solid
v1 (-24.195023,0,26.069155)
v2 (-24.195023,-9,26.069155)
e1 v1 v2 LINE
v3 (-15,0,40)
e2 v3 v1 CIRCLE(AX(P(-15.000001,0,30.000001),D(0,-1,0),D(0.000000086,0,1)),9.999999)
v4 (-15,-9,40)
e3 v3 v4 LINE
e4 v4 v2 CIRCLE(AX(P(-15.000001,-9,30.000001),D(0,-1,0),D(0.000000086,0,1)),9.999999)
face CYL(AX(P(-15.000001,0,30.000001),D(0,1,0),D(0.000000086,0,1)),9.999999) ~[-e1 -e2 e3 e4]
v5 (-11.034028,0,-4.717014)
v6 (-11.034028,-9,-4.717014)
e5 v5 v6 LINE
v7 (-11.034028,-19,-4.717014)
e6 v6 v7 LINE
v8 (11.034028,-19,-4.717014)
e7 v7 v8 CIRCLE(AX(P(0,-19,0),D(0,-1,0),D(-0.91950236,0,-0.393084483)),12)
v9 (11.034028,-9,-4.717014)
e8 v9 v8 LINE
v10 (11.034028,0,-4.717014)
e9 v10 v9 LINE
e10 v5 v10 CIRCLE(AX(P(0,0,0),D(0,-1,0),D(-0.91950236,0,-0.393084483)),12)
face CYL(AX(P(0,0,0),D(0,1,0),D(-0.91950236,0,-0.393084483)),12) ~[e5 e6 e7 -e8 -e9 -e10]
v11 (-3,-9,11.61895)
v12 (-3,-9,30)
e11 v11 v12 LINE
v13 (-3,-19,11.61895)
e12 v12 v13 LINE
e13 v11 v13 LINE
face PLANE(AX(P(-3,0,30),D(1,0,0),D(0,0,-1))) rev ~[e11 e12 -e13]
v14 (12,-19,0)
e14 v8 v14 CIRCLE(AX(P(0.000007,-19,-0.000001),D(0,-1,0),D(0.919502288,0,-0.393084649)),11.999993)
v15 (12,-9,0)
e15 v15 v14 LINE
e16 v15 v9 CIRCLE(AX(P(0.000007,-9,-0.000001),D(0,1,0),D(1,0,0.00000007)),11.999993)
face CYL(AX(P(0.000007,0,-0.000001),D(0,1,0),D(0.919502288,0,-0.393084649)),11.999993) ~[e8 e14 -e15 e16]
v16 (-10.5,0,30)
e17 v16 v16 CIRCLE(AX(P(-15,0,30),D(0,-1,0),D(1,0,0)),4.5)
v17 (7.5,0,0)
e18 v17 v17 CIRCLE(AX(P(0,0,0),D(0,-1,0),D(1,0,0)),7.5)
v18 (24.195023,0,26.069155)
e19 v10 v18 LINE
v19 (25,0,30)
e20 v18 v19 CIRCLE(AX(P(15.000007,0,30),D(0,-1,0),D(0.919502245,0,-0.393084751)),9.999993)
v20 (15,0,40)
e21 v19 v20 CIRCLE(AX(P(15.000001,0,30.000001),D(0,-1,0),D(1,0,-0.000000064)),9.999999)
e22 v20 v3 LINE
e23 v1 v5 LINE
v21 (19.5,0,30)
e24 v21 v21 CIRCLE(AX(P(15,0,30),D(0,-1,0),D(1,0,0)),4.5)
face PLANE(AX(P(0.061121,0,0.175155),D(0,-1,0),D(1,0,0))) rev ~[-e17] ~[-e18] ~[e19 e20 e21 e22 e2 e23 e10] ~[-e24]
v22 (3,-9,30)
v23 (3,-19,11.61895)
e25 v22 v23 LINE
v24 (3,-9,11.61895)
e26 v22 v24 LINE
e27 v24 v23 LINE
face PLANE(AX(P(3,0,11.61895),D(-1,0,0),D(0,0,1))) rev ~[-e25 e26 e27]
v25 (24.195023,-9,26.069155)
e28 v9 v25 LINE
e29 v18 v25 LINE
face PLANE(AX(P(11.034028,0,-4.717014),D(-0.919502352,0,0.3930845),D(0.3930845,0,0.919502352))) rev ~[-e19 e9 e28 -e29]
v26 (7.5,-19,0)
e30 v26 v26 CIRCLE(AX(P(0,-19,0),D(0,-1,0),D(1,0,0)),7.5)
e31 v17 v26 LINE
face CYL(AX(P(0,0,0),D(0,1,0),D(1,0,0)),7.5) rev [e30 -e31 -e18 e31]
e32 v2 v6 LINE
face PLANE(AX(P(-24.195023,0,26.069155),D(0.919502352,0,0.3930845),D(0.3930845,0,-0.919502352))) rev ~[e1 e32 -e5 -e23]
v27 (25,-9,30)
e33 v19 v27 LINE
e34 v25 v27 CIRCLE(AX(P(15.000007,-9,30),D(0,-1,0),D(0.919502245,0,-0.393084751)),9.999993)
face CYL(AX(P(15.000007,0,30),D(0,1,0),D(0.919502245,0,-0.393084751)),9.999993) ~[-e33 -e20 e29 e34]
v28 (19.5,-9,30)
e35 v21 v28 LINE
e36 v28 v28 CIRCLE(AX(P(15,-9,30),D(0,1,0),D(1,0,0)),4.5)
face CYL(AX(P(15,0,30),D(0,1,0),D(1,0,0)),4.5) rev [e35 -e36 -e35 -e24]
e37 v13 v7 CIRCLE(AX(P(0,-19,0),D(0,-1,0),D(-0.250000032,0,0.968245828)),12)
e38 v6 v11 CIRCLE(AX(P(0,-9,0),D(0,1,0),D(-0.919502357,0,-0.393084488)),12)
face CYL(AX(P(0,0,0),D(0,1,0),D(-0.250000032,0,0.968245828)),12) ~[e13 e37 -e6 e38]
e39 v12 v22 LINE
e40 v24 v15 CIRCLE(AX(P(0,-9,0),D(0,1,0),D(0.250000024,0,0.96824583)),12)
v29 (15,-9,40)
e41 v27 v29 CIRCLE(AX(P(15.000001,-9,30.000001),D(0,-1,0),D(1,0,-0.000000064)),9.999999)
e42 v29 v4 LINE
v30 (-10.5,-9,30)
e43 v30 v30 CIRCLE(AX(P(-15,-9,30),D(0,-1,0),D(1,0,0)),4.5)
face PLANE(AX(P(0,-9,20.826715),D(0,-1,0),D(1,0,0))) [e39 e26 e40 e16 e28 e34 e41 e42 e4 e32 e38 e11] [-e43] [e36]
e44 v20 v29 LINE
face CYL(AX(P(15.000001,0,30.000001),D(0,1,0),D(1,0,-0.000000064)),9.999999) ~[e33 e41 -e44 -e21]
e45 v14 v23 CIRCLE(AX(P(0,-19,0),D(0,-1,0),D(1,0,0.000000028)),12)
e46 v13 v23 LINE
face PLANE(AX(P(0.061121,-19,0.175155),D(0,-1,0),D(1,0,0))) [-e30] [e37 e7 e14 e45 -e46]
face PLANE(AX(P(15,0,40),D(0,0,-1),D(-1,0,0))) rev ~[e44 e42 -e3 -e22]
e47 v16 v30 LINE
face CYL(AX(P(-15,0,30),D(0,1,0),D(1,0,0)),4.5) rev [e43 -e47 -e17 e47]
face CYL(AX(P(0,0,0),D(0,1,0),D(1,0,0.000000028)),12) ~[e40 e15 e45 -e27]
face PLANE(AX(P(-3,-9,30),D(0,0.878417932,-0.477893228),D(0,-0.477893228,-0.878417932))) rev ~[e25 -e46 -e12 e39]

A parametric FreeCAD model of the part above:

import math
import FreeCAD as App
import Part
import Sketcher
from FreeCAD import Vector
Q = App.Units.Quantity

doc = App.newDocument("Part")
params = doc.addObject("Spreadsheet::Sheet", "Params")
for row, (alias, value) in enumerate([
    ("sketch1_diameter", "9 mm"),
    ("sketch1_radius", "11.999999 mm"),
    ("sketch1_radius2", "9.999999 mm"),
    ("sketch1_width", "30 mm"),
    ("pad1_length", "9 mm"),
    ("sketch2_radius", "11.999999 mm"),
    ("sketch2_width", "6 mm"),
    ("pad2_length", "19 mm"),
    ("sketch3_diameter", "15 mm"),
    ("sketch3_radius", "12 mm"),
    ("pad3_length", "19 mm"),
    ("sketch4_width", "10 mm"),
], start=1):
    params.set(f"A{row}", alias)
    params.set(f"B{row}", "=" + value)
    params.setAlias(f"B{row}", alias)

body = doc.addObject("PartDesign::Body", "Body")

# Sketch on XZ plane
sketch1 = doc.addObject("Sketcher::SketchObject", "Sketch")
body.addObject(sketch1)
sketch1.AttachmentSupport = (doc.XZ_Plane, [""])
sketch1.MapMode = "FlatFace"
sketch1.addGeometry(Part.ArcOfCircle(Part.Circle(Vector(0, 0, 0), Vector(0, 0, 1), 12), math.radians(76), math.radians(104)), False)
sketch1.addGeometry(Part.ArcOfCircle(Part.Circle(Vector(0, 0, 0), Vector(0, 0, 1), 12), math.radians(0), math.radians(76)), False)
sketch1.addGeometry(Part.ArcOfCircle(Part.Circle(Vector(0, 0, 0), Vector(0, 0, 1), 12), math.radians(-23), math.radians(0)), False)
sketch1.addGeometry(Part.LineSegment(Vector(11, -4.7, 0), Vector(24.2, 26.1, 0)), False)
sketch1.addGeometry(Part.ArcOfCircle(Part.Circle(Vector(15, 30, 0), Vector(0, 0, 1), 10), math.radians(-23), math.radians(0)), False)
sketch1.addGeometry(Part.ArcOfCircle(Part.Circle(Vector(15, 30, 0), Vector(0, 0, 1), 10), math.radians(0), math.radians(90)), False)
sketch1.addGeometry(Part.LineSegment(Vector(15, 40, 0), Vector(-15, 40, 0)), False)
sketch1.addGeometry(Part.ArcOfCircle(Part.Circle(Vector(-15, 30, 0), Vector(0, 0, 1), 10), math.radians(90), math.radians(203)), False)
sketch1.addGeometry(Part.LineSegment(Vector(-24.2, 26.1, 0), Vector(-11, -4.7, 0)), False)
sketch1.addGeometry(Part.ArcOfCircle(Part.Circle(Vector(0, 0, 0), Vector(0, 0, 1), 12), math.radians(104), math.radians(203)), False)
sketch1.addGeometry(Part.Circle(Vector(-15, 30, 0), Vector(0, 0, 1), 4.5), False)
sketch1.addGeometry(Part.Circle(Vector(15, 30, 0), Vector(0, 0, 1), 4.5), False)
sketch1.addConstraint(Sketcher.Constraint("Tangent", 0, 1, 1, 2))
sketch1.addConstraint(Sketcher.Constraint("Tangent", 1, 1, 2, 2))
sketch1.addConstraint(Sketcher.Constraint("Tangent", 2, 1, 3, 1))
sketch1.addConstraint(Sketcher.Constraint("Tangent", 3, 2, 4, 1))
sketch1.addConstraint(Sketcher.Constraint("Tangent", 4, 2, 5, 1))
sketch1.addConstraint(Sketcher.Constraint("Tangent", 5, 2, 6, 1))
sketch1.addConstraint(Sketcher.Constraint("Tangent", 6, 2, 7, 1))
sketch1.addConstraint(Sketcher.Constraint("Tangent", 7, 2, 8, 1))
sketch1.addConstraint(Sketcher.Constraint("Tangent", 8, 2, 9, 2))
sketch1.addConstraint(Sketcher.Constraint("Tangent", 9, 1, 0, 2))
sketch1.addConstraint(Sketcher.Constraint("Horizontal", 6))
sketch1.addConstraint(Sketcher.Constraint("Coincident", 0, 3, -1, 1))
sketch1.addConstraint(Sketcher.Constraint("Coincident", 2, 3, -1, 1))
sketch1.addConstraint(Sketcher.Constraint("Coincident", 10, 3, 7, 3))
sketch1.addConstraint(Sketcher.Constraint("Coincident", 11, 3, 4, 3))
sketch1.addConstraint(Sketcher.Constraint("Equal", 5, 7))
sketch1.addConstraint(Sketcher.Constraint("Equal", 1, 9))
sketch1.addConstraint(Sketcher.Constraint("Equal", 10, 11))
sketch1.addConstraint(Sketcher.Constraint("Symmetric", 3, 2, 7, 2, -2))
sketch1.addConstraint(Sketcher.Constraint("PointOnObject", 1, 1, -1))
sketch1.addConstraint(Sketcher.Constraint("Horizontal", 11, 3, 4, 2))
sketch1.addConstraint(Sketcher.Constraint("Horizontal", 0, 1, 9, 1))
sketch1.addConstraint(Sketcher.Constraint("Diameter", 10, Q("9 mm")))
sketch1.addConstraint(Sketcher.Constraint("Radius", 0, Q("11.999999 mm")))
sketch1.addConstraint(Sketcher.Constraint("Radius", 5, Q("9.999999 mm")))
sketch1.addConstraint(Sketcher.Constraint("DistanceX", 6, 2, 6, 1, Q("30 mm")))
sketch1.addConstraint(Sketcher.Constraint("DistanceY", -1, 1, 4, 3, Q("30 mm")))
sketch1.addConstraint(Sketcher.Constraint("DistanceX", -1, 1, 0, 1, Q("3 mm")))
sketch1.setExpression("Constraints[22]", "Params.sketch1_diameter")
sketch1.setExpression("Constraints[23]", "Params.sketch1_radius")
sketch1.setExpression("Constraints[24]", "Params.sketch1_radius2")
sketch1.setExpression("Constraints[25]", "Params.sketch1_width")
pad1 = doc.addObject("PartDesign::Pad", "Pad")
body.addObject(pad1)
pad1.Profile = sketch1
pad1.setExpression("Length", "Params.pad1_length")

# Sketch on XZ plane
sketch2 = doc.addObject("Sketcher::SketchObject", "Sketch001")
body.addObject(sketch2)
sketch2.AttachmentSupport = (doc.XZ_Plane, [""])
sketch2.MapMode = "FlatFace"
sketch2.addGeometry(Part.ArcOfCircle(Part.Circle(Vector(0, 0, 0), Vector(0, 0, 1), 12), math.radians(76), math.radians(104)), False)
sketch2.addGeometry(Part.LineSegment(Vector(3, 12, 0), Vector(3, 30, 0)), False)
sketch2.addGeometry(Part.LineSegment(Vector(3, 30, 0), Vector(-3, 30, 0)), False)
sketch2.addGeometry(Part.LineSegment(Vector(-3, 30, 0), Vector(-3, 12, 0)), False)
sketch2.addConstraint(Sketcher.Constraint("Coincident", 0, 1, 1, 1))
sketch2.addConstraint(Sketcher.Constraint("Coincident", 1, 2, 2, 1))
sketch2.addConstraint(Sketcher.Constraint("Coincident", 2, 2, 3, 1))
sketch2.addConstraint(Sketcher.Constraint("Coincident", 3, 2, 0, 2))
sketch2.addConstraint(Sketcher.Constraint("Vertical", 1))
sketch2.addConstraint(Sketcher.Constraint("Horizontal", 2))
sketch2.addConstraint(Sketcher.Constraint("Vertical", 3))
sketch2.addConstraint(Sketcher.Constraint("Coincident", 0, 3, -1, 1))
sketch2.addConstraint(Sketcher.Constraint("Horizontal", 0, 1, 3, 2))
sketch2.addConstraint(Sketcher.Constraint("Radius", 0, Q("11.999999 mm")))
sketch2.addConstraint(Sketcher.Constraint("DistanceX", 2, 2, 2, 1, Q("6 mm")))
sketch2.addConstraint(Sketcher.Constraint("DistanceY", -1, 1, 1, 2, Q("30 mm")))
sketch2.setExpression("Constraints[9]", "Params.sketch2_radius")
sketch2.setExpression("Constraints[10]", "Params.sketch2_width")
pad2 = doc.addObject("PartDesign::Pad", "Pad001")
body.addObject(pad2)
pad2.Profile = sketch2
pad2.setExpression("Length", "Params.pad2_length")

# Sketch on XZ plane
sketch3 = doc.addObject("Sketcher::SketchObject", "Sketch002")
body.addObject(sketch3)
sketch3.AttachmentSupport = (doc.XZ_Plane, [""])
sketch3.MapMode = "FlatFace"
sketch3.addGeometry(Part.ArcOfCircle(Part.Circle(Vector(0, 0, 0), Vector(0, 0, 1), 12), math.radians(-23), math.radians(0)), False)
sketch3.addGeometry(Part.ArcOfCircle(Part.Circle(Vector(0, 0, 0), Vector(0, 0, 1), 12), math.radians(0), math.radians(76)), False)
sketch3.addGeometry(Part.ArcOfCircle(Part.Circle(Vector(0, 0, 0), Vector(0, 0, 1), 12), math.radians(76), math.radians(104)), False)
sketch3.addGeometry(Part.ArcOfCircle(Part.Circle(Vector(0, 0, 0), Vector(0, 0, 1), 12), math.radians(104), math.radians(203)), False)
sketch3.addGeometry(Part.ArcOfCircle(Part.Circle(Vector(0, 0, 0), Vector(0, 0, 1), 12), math.radians(-157), math.radians(-23)), False)
sketch3.addGeometry(Part.Circle(Vector(0, 0, 0), Vector(0, 0, 1), 7.5), False)
sketch3.addConstraint(Sketcher.Constraint("Tangent", 0, 2, 1, 1))
sketch3.addConstraint(Sketcher.Constraint("Tangent", 1, 2, 2, 1))
sketch3.addConstraint(Sketcher.Constraint("Tangent", 2, 2, 3, 1))
sketch3.addConstraint(Sketcher.Constraint("Tangent", 3, 2, 4, 1))
sketch3.addConstraint(Sketcher.Constraint("Tangent", 4, 2, 0, 1))
sketch3.addConstraint(Sketcher.Constraint("Coincident", 0, 3, -1, 1))
sketch3.addConstraint(Sketcher.Constraint("Coincident", 2, 3, -1, 1))
sketch3.addConstraint(Sketcher.Constraint("Coincident", 5, 3, -1, 1))
sketch3.addConstraint(Sketcher.Constraint("PointOnObject", 0, 2, -1))
sketch3.addConstraint(Sketcher.Constraint("Horizontal", 1, 2, 2, 2))
sketch3.addConstraint(Sketcher.Constraint("Horizontal", 3, 2, 4, 2))
sketch3.addConstraint(Sketcher.Constraint("Diameter", 5, Q("15 mm")))
sketch3.addConstraint(Sketcher.Constraint("Radius", 1, Q("12 mm")))
sketch3.addConstraint(Sketcher.Constraint("DistanceX", -1, 1, 1, 2, Q("3 mm")))
sketch3.addConstraint(Sketcher.Constraint("DistanceX", 3, 2, 3, 3, Q("11.034028 mm")))
sketch3.setExpression("Constraints[11]", "Params.sketch3_diameter")
sketch3.setExpression("Constraints[12]", "Params.sketch3_radius")
pad3 = doc.addObject("PartDesign::Pad", "Pad002")
body.addObject(pad3)
pad3.Profile = sketch3
pad3.setExpression("Length", "Params.pad3_length")

# Sketch on YZ plane
sketch4 = doc.addObject("Sketcher::SketchObject", "Sketch003")
body.addObject(sketch4)
sketch4.AttachmentSupport = (doc.YZ_Plane, [""])
sketch4.MapMode = "FlatFace"
sketch4.AttachmentOffset = App.Placement(Vector(0, 0, -3), App.Rotation())
sketch4.addGeometry(Part.LineSegment(Vector(-19, 30, 0), Vector(-9, 30, 0)), False)
sketch4.addGeometry(Part.LineSegment(Vector(-9, 30, 0), Vector(-19, 12, 0)), False)
sketch4.addGeometry(Part.LineSegment(Vector(-19, 12, 0), Vector(-19, 30, 0)), False)
sketch4.addConstraint(Sketcher.Constraint("Coincident", 0, 2, 1, 1))
sketch4.addConstraint(Sketcher.Constraint("Coincident", 1, 2, 2, 1))
sketch4.addConstraint(Sketcher.Constraint("Coincident", 2, 2, 0, 1))
sketch4.addConstraint(Sketcher.Constraint("Horizontal", 0))
sketch4.addConstraint(Sketcher.Constraint("Vertical", 2))
sketch4.addConstraint(Sketcher.Constraint("DistanceX", 0, 1, 0, 2, Q("10 mm")))
sketch4.addConstraint(Sketcher.Constraint("DistanceX", 0, 2, -1, 1, Q("9 mm")))
sketch4.addConstraint(Sketcher.Constraint("DistanceY", -1, 1, 0, 2, Q("30 mm")))
sketch4.addConstraint(Sketcher.Constraint("DistanceY", 2, 1, 2, 2, Q("18.38105 mm")))
sketch4.setExpression("Constraints[5]", "Params.sketch4_width")
pocket1 = doc.addObject("PartDesign::Pocket", "Pocket")
body.addObject(pocket1)
pocket1.Profile = sketch4
pocket1.Type = "ThroughAll"
pocket1.Reversed = True

doc.recompute()
